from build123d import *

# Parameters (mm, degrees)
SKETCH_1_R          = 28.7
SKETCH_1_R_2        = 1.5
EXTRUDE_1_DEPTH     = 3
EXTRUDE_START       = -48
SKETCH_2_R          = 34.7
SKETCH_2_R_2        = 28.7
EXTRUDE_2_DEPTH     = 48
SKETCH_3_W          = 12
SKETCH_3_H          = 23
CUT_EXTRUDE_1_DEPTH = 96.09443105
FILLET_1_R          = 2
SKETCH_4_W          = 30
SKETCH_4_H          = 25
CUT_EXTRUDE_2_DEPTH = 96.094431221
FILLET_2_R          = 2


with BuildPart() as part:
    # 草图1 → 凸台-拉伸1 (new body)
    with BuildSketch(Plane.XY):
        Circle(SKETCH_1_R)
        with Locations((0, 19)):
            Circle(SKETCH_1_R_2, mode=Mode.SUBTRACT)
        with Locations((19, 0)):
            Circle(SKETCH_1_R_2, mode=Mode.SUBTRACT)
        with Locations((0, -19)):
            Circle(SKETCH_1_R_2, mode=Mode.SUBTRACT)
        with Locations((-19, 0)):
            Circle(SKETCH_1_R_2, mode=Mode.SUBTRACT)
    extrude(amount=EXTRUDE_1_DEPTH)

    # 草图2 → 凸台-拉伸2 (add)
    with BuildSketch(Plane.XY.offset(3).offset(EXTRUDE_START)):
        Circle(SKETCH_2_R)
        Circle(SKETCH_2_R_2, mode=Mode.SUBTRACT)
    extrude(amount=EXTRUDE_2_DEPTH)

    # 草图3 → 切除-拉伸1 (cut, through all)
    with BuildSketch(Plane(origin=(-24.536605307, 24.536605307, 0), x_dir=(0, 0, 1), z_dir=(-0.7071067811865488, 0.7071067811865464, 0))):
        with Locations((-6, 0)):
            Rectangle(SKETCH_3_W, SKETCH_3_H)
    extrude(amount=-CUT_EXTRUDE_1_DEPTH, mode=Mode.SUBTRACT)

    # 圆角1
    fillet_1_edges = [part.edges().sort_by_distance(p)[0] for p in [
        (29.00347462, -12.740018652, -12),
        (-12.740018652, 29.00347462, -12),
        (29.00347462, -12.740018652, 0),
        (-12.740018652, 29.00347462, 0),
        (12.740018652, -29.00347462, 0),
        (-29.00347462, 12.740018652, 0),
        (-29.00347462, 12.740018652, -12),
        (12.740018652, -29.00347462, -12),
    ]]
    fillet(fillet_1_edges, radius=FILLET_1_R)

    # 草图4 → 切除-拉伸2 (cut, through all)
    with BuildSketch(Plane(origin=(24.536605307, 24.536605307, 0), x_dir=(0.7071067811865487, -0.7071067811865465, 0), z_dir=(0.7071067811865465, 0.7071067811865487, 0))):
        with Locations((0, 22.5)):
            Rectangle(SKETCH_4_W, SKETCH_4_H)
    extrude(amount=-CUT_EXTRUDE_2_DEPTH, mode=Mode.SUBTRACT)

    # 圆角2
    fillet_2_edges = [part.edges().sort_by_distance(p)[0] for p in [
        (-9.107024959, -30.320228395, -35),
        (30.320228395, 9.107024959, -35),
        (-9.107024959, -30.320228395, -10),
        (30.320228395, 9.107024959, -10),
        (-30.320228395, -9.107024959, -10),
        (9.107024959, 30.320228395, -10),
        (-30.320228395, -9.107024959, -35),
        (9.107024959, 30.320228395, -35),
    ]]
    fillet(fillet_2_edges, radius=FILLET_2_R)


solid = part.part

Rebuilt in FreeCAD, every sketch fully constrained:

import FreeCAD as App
import Part
import Sketcher
from FreeCAD import Vector
Q = App.Units.Quantity


def edges_at(feature, points):
    """Names of the edges that pass closest to the given points."""
    edges = feature.Shape.Edges
    near = lambda p: min(range(len(edges)), key=lambda i: edges[i].distToShape(Part.Vertex(*p))[0])
    return sorted({f"Edge{near(p) + 1}" for p in points})


def add_polygon(sketch, points):
    """Adds a closed chain of lines whose ends are joined by coincident constraints."""
    first, n = sketch.GeometryCount, len(points)
    for a, b in zip(points, points[1:] + points[:1]):
        sketch.addGeometry(Part.LineSegment(App.Vector(*a, 0), App.Vector(*b, 0)), False)
    for i in range(n):
        sketch.addConstraint(Sketcher.Constraint("Coincident", first + i, 2, first + (i + 1) % n, 1))

doc = App.newDocument("Part")
params = doc.addObject("Spreadsheet::Sheet", "Params")
for row, (alias, value) in enumerate([
    ("sketch1_diameter", "3 mm"),
    ("sketch1_diameter2", "57.4 mm"),
    ("pad1_length", "3 mm"),
    ("sketch2_diameter", "69.4 mm"),
    ("sketch2_diameter2", "57.4 mm"),
    ("pad2_length", "48 mm"),
    ("sketch3_width", "12 mm"),
    ("sketch3_height", "23 mm"),
    ("fillet_radius", "2 mm"),
    ("sketch4_width", "30 mm"),
    ("sketch4_height", "25 mm"),
    ("fillet2_radius", "2 mm"),
], start=1):
    params.set(f"A{row}", alias)
    params.set(f"B{row}", "=" + value)
    params.setAlias(f"B{row}", alias)

body = doc.addObject("PartDesign::Body", "Body")

# Sketch on XY plane
sketch1 = doc.addObject("Sketcher::SketchObject", "Sketch")
body.addObject(sketch1)
sketch1.AttachmentSupport = (doc.XY_Plane, [""])
sketch1.MapMode = "FlatFace"
sketch1.addGeometry([
    Part.Circle(Vector(0, 0, 0), Vector(0, 0, 1), 28.7),  # 0
    Part.Circle(Vector(0, -19, 0), Vector(0, 0, 1), 1.5),  # 1
    Part.Circle(Vector(-19, 0, 0), Vector(0, 0, 1), 1.5),  # 2
    Part.Circle(Vector(19, 0, 0), Vector(0, 0, 1), 1.5),  # 3
    Part.Circle(Vector(0, 19, 0), Vector(0, 0, 1), 1.5),  # 4
], False)
sketch1.addConstraint([
    Sketcher.Constraint("Coincident", 0, 3, -1, 1),
    Sketcher.Constraint("Equal", 1, 2),
    Sketcher.Constraint("Equal", 2, 3),
    Sketcher.Constraint("Equal", 3, 4),
    Sketcher.Constraint("Symmetric", 2, 3, 3, 3, -1, 1),
    Sketcher.Constraint("Symmetric", 1, 3, 4, 3, -1, 1),
    Sketcher.Constraint("PointOnObject", 1, 3, -2),
    Sketcher.Constraint("PointOnObject", 2, 3, -1),
    Sketcher.Constraint("Diameter", 1, Q("3 mm")),
    Sketcher.Constraint("Diameter", 0, Q("57.4 mm")),
    Sketcher.Constraint("DistanceY", 1, 3, -1, 1, Q("19 mm")),
    Sketcher.Constraint("DistanceX", 2, 3, -1, 1, Q("19 mm")),
])
sketch1.setExpression("Constraints[8]", "Params.sketch1_diameter")
sketch1.setExpression("Constraints[9]", "Params.sketch1_diameter2")
pad1 = doc.addObject("PartDesign::Pad", "Pad")
body.addObject(pad1)
pad1.Profile = sketch1
pad1.setExpression("Length", "Params.pad1_length")

# Sketch on XY plane
sketch2 = doc.addObject("Sketcher::SketchObject", "Sketch001")
body.addObject(sketch2)
sketch2.AttachmentSupport = (doc.XY_Plane, [""])
sketch2.MapMode = "FlatFace"
sketch2.AttachmentOffset = App.Placement(Vector(0, 0, -45), App.Rotation())
sketch2.addGeometry([
    Part.Circle(Vector(0, 0, 0), Vector(0, 0, 1), 34.7),
    Part.Circle(Vector(0, 0, 0), Vector(0, 0, 1), 28.7),
], False)
sketch2.addConstraint([
    Sketcher.Constraint("Coincident", 0, 3, -1, 1),
    Sketcher.Constraint("Coincident", 1, 3, -1, 1),
    Sketcher.Constraint("Diameter", 0, Q("69.4 mm")),
    Sketcher.Constraint("Diameter", 1, Q("57.4 mm")),
])
sketch2.setExpression("Constraints[2]", "Params.sketch2_diameter")
sketch2.setExpression("Constraints[3]", "Params.sketch2_diameter2")
pad2 = doc.addObject("PartDesign::Pad", "Pad001")
body.addObject(pad2)
pad2.Profile = sketch2
pad2.setExpression("Length", "Params.pad2_length")

# Sketch on an angled plane
sketch3 = doc.addObject("Sketcher::SketchObject", "Sketch002")
body.addObject(sketch3)
sketch3.Placement = App.Placement(Vector(-24.536605, 24.536605, 0), App.Rotation(Vector(0, 0, 1), Vector(0.707106781, 0.707106781, 0), Vector(-0.707106781, 0.707106781, 0), "ZXY"))
add_polygon(sketch3, [(-12, 11.5), (-12, -11.5), (0, -11.5), (0, 11.5)])  # lines 0-3
sketch3.addConstraint([
    Sketcher.Constraint("Vertical", 0),
    Sketcher.Constraint("Horizontal", 1),
    Sketcher.Constraint("Vertical", 2),
    Sketcher.Constraint("Horizontal", 3),
    Sketcher.Constraint("Symmetric", 1, 2, 2, 2, -1, 1),
    Sketcher.Constraint("DistanceX", 1, 1, 1, 2, Q("12 mm")),
    Sketcher.Constraint("DistanceY", 0, 2, 0, 1, Q("23 mm")),
])
sketch3.setExpression("Constraints[9]", "Params.sketch3_width")
sketch3.setExpression("Constraints[10]", "Params.sketch3_height")
pocket1 = doc.addObject("PartDesign::Pocket", "Pocket")
body.addObject(pocket1)
pocket1.Profile = sketch3
pocket1.Type = "ThroughAll"
doc.recompute()

fillet = doc.addObject("PartDesign::Fillet", "Fillet")
body.addObject(fillet)
fillet.Base = (pocket1, edges_at(pocket1, [
    (29.003, -12.74, -12),
    (-12.74, 29.003, -12),
    (29.003, -12.74, 0),
    (-12.74, 29.003, 0),
    (12.74, -29.003, 0),
    (-29.003, 12.74, 0),
    (-29.003, 12.74, -12),
    (12.74, -29.003, -12),
]))
fillet.setExpression("Radius", "Params.fillet_radius")

# Sketch on an angled plane
sketch4 = doc.addObject("Sketcher::SketchObject", "Sketch003")
body.addObject(sketch4)
sketch4.Placement = App.Placement(Vector(24.536605, 24.536605, 0), App.Rotation(Vector(0.707106781, -0.707106781, 0), Vector(0, 0, -0.999999999), Vector(0.707106781, 0.707106781, 0), "ZXY"))
add_polygon(sketch4, [(-15, 35), (-15, 10), (15, 10), (15, 35)])  # lines 0-3
sketch4.addConstraint([
    Sketcher.Constraint("Vertical", 0),
    Sketcher.Constraint("Horizontal", 1),
    Sketcher.Constraint("Vertical", 2),
    Sketcher.Constraint("Horizontal", 3),
    Sketcher.Constraint("DistanceX", 1, 1, 1, 2, Q("30 mm")),
    Sketcher.Constraint("DistanceY", 0, 2, 0, 1, Q("25 mm")),
    Sketcher.Constraint("DistanceX", 0, 2, -1, 1, Q("15 mm")),
    Sketcher.Constraint("DistanceY", -1, 1, 0, 2, Q("10 mm")),
])
sketch4.setExpression("Constraints[8]", "Params.sketch4_width")
sketch4.setExpression("Constraints[9]", "Params.sketch4_height")
pocket2 = doc.addObject("PartDesign::Pocket", "Pocket001")
body.addObject(pocket2)
pocket2.Profile = sketch4
pocket2.Type = "ThroughAll"
doc.recompute()

fillet2 = doc.addObject("PartDesign::Fillet", "Fillet001")
body.addObject(fillet2)
fillet2.Base = (pocket2, edges_at(pocket2, [
    (-9.107, -30.32, -35),
    (30.32, 9.107, -35),
    (-9.107, -30.32, -10),
    (30.32, 9.107, -10),
    (-30.32, -9.107, -10),
    (9.107, 30.32, -10),
    (-30.32, -9.107, -35),
    (9.107, 30.32, -35),
]))
fillet2.setExpression("Radius", "Params.fillet2_radius")

doc.recompute()
